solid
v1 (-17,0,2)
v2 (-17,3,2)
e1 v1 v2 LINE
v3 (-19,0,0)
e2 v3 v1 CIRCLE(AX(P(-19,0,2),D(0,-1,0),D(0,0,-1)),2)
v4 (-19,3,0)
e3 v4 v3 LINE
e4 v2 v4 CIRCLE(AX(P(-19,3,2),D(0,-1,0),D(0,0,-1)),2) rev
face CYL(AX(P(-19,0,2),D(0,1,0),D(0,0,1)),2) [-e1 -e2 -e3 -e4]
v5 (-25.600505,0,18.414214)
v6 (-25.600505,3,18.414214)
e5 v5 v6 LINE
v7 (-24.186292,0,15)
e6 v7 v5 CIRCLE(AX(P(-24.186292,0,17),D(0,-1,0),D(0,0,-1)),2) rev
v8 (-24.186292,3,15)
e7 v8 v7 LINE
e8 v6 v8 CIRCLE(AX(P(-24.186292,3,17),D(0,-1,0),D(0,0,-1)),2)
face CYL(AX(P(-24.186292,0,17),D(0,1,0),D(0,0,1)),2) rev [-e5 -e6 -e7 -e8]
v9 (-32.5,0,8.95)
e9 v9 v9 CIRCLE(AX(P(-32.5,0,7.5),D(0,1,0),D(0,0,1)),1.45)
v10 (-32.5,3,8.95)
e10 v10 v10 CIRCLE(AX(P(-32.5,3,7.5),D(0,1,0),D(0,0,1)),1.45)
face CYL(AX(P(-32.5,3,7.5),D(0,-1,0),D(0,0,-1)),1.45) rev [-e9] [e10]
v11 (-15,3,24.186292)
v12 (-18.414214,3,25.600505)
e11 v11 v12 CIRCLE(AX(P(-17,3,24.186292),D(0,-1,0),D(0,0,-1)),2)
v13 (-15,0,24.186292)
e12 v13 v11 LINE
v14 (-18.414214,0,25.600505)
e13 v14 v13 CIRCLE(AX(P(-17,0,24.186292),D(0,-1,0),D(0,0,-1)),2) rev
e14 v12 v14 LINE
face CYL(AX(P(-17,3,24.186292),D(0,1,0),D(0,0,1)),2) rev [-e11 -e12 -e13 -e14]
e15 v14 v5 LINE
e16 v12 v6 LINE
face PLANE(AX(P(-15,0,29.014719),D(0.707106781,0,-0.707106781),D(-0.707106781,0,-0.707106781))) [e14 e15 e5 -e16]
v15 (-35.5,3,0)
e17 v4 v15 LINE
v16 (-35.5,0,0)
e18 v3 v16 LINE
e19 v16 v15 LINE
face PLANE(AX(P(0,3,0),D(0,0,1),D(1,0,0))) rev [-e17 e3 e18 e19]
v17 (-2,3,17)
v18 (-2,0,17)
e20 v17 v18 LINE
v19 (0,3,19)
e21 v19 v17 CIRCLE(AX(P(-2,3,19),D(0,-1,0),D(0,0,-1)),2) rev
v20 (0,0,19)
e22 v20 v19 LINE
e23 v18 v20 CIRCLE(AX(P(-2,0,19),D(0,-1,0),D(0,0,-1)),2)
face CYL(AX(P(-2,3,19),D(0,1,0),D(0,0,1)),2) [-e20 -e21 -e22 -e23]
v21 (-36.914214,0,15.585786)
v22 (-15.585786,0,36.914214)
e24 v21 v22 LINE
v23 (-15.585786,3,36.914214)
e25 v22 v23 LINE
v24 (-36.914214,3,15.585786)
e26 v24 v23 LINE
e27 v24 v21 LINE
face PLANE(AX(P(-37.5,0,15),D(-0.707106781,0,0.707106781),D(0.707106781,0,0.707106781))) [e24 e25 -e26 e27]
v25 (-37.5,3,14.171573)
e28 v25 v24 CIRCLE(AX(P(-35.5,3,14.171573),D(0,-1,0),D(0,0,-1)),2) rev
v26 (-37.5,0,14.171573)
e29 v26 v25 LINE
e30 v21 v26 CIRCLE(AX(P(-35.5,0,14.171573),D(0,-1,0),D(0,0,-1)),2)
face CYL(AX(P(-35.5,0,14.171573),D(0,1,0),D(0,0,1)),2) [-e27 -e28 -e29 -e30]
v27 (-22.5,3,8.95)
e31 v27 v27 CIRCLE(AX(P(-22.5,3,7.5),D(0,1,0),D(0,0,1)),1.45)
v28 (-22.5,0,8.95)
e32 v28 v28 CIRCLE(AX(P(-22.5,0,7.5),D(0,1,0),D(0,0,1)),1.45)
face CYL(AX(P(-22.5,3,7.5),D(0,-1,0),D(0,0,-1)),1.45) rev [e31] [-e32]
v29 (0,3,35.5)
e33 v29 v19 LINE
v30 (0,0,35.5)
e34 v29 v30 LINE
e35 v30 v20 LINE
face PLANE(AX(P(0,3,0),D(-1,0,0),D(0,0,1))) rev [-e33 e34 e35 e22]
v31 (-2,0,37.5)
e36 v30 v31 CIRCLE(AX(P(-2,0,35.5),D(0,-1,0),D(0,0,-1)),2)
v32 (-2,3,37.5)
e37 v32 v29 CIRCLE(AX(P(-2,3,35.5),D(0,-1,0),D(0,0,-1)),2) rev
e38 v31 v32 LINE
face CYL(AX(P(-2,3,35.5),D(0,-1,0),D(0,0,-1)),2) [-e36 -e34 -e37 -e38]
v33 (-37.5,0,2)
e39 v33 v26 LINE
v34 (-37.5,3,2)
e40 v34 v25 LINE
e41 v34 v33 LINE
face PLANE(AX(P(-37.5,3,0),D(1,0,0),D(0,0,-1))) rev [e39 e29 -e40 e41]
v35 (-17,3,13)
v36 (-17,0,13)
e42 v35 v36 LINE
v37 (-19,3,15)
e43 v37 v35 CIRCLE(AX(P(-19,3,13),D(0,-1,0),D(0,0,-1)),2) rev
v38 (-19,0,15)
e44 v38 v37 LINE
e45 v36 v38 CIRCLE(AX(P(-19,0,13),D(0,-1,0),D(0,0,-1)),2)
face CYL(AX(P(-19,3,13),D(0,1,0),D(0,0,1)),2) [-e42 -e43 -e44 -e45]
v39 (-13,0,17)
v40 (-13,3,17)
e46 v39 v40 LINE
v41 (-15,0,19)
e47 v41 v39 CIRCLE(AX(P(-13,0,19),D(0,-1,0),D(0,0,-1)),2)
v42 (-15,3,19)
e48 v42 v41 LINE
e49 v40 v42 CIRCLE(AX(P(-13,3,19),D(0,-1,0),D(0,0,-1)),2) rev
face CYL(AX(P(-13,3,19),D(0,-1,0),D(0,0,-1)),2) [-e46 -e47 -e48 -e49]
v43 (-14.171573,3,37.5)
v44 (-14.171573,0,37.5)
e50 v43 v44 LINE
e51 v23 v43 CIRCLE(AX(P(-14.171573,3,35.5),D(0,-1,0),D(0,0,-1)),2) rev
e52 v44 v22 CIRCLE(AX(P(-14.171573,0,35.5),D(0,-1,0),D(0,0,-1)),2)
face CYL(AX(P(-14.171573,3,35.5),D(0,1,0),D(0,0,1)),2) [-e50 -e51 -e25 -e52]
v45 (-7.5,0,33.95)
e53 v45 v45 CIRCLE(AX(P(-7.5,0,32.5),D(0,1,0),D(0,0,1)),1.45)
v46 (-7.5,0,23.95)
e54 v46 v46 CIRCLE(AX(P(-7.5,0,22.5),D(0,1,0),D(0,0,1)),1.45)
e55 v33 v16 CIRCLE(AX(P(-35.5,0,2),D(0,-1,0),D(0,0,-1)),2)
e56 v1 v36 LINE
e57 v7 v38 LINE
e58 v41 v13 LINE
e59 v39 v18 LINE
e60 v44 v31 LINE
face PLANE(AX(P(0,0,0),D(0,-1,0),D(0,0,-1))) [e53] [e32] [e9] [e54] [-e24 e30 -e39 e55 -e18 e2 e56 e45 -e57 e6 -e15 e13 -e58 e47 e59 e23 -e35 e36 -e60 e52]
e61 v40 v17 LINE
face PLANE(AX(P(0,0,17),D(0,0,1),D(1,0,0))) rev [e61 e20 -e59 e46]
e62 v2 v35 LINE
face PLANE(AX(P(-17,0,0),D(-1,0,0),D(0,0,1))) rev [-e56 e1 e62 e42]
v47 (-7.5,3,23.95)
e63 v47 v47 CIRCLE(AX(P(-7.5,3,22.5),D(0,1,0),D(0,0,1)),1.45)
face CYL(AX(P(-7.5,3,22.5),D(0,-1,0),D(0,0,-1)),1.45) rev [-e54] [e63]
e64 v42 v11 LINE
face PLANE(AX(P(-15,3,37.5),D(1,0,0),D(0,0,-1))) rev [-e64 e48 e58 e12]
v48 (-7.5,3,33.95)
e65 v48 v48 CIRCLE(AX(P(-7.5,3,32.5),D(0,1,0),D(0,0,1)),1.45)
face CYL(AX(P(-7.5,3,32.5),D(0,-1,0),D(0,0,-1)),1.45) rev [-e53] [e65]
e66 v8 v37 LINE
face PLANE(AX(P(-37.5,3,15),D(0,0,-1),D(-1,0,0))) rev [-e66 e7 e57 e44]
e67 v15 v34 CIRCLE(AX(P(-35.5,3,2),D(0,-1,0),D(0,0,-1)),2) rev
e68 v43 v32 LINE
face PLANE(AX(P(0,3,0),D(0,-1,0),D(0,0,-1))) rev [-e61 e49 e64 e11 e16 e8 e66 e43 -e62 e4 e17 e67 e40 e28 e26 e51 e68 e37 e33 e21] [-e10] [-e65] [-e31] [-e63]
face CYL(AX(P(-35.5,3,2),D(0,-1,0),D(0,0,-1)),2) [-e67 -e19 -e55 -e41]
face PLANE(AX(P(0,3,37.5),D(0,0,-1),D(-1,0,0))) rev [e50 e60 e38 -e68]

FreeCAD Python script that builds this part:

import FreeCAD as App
import Part
import Sketcher
from FreeCAD import Vector
Q = App.Units.Quantity


def edges_at(feature, points):
    """Names of the edges that pass closest to the given points."""
    edges = feature.Shape.Edges
    near = lambda p: min(range(len(edges)), key=lambda i: edges[i].distToShape(Part.Vertex(*p))[0])
    return sorted({f"Edge{near(p) + 1}" for p in points})

doc = App.newDocument("Part")
body = doc.addObject("PartDesign::Body", "Body")

# Sketch on XZ plane
sketch1 = body.newObject("Sketcher::SketchObject", "Sketch")
sketch1.AttachmentSupport = (doc.getObject("XZ_Plane"), [""])
sketch1.MapMode = "FlatFace"
sketch1.addGeometry([
    Part.LineSegment(Vector(0, 0, 0), Vector(-37.5, 0, 0)),  # 0
    Part.LineSegment(Vector(-37.5, 0, 0), Vector(-37.5, 15, 0)),  # 1
    Part.LineSegment(Vector(-37.5, 15, 0), Vector(-15, 15, 0)),  # 2
    Part.LineSegment(Vector(-15, 15, 0), Vector(-15, 37.5, 0)),  # 3
    Part.LineSegment(Vector(-15, 37.5, 0), Vector(0, 37.5, 0)),  # 4
    Part.LineSegment(Vector(0, 37.5, 0), Vector(0, 0, 0)),  # 5
    Part.Circle(Vector(-7.5, 32.5, 0), Vector(0, 0, 1), 1.4),  # 6
    Part.Circle(Vector(-7.5, 22.5, 0), Vector(0, 0, 1), 1.4),  # 7
    Part.Circle(Vector(-32.5, 7.5, 0), Vector(0, 0, 1), 1.4),  # 8
    Part.Circle(Vector(-22.5, 7.5, 0), Vector(0, 0, 1), 1.4),  # 9
    Part.Circle(Vector(-7.5, 7.5, 0), Vector(0, 0, 1), 1.4),  # 10
], False)
sketch1.addConstraint([
    Sketcher.Constraint("Coincident", 0, 2, 1, 1),
    Sketcher.Constraint("Coincident", 1, 2, 2, 1),
    Sketcher.Constraint("Coincident", 2, 2, 3, 1),
    Sketcher.Constraint("Coincident", 3, 2, 4, 1),
    Sketcher.Constraint("Coincident", 4, 2, 5, 1),
    Sketcher.Constraint("Coincident", 5, 2, 0, 1),
    Sketcher.Constraint("Horizontal", 0),
    Sketcher.Constraint("Vertical", 1),
    Sketcher.Constraint("Horizontal", 2),
    Sketcher.Constraint("Vertical", 3),
    Sketcher.Constraint("Horizontal", 4),
    Sketcher.Constraint("Vertical", 5),
    Sketcher.Constraint("Coincident", 5, 2, -1, 1),
    Sketcher.Constraint("Equal", 6, 7),
    Sketcher.Constraint("Equal", 7, 8),
    Sketcher.Constraint("Equal", 8, 9),
    Sketcher.Constraint("Equal", 9, 10),
    Sketcher.Constraint("Horizontal", 8, 3, 9, 3),
    Sketcher.Constraint("Horizontal", 9, 3, 10, 3),
    Sketcher.Constraint("Vertical", 6, 3, 7, 3),
    Sketcher.Constraint("Vertical", 7, 3, 10, 3),
    Sketcher.Constraint("Equal", 4, 1),
    Sketcher.Constraint("Equal", 2, 3),
    Sketcher.Constraint("Diameter", 6, Q("2.9 mm")),
    Sketcher.Constraint("DistanceX", 4, 1, 4, 2, Q("15 mm")),
    Sketcher.Constraint("DistanceX", 0, 2, 0, 1, Q("37.5 mm")),
    Sketcher.Constraint("DistanceY", 7, 3, 6, 3, Q("10 mm")),
    Sketcher.Constraint("DistanceX", 8, 3, 7, 3, Q("25 mm")),
    Sketcher.Constraint("DistanceY", 8, 3, 7, 3, Q("15 mm")),
    Sketcher.Constraint("DistanceX", 8, 3, 9, 3, Q("10 mm")),
    Sketcher.Constraint("DistanceX", 0, 2, 8, 3, Q("5 mm")),
    Sketcher.Constraint("DistanceY", 6, 3, 3, 2, Q("5 mm")),
])
pad1 = body.newObject("PartDesign::Pad", "Pad")
pad1.Profile = sketch1
pad1.Length = 3
pad1.Reversed = True

# Sketch on XZ plane
sketch2 = body.newObject("Sketcher::SketchObject", "Sketch001")
sketch2.AttachmentSupport = (doc.getObject("XZ_Plane"), [""])
sketch2.MapMode = "FlatFace"
sketch2.AttachmentOffset = App.Placement(Vector(0, 0, -3), App.Rotation())
sketch2.addGeometry([
    Part.LineSegment(Vector(-38, 15, 0), Vector(-15, 38, 0)),
    Part.LineSegment(Vector(-15, 38, 0), Vector(-15, 29, 0)),
    Part.LineSegment(Vector(-15, 29, 0), Vector(-29, 15, 0)),
    Part.LineSegment(Vector(-29, 15, 0), Vector(-38, 15, 0)),
], False)
sketch2.addConstraint([
    Sketcher.Constraint("Coincident", 0, 2, 1, 1),
    Sketcher.Constraint("Coincident", 1, 2, 2, 1),
    Sketcher.Constraint("Coincident", 2, 2, 3, 1),
    Sketcher.Constraint("Coincident", 3, 2, 0, 1),
    Sketcher.Constraint("Vertical", 1),
    Sketcher.Constraint("Horizontal", 3),
    Sketcher.Constraint("Parallel", 0, 2),
    Sketcher.Constraint("Equal", 3, 1),
    Sketcher.Constraint("DistanceX", 0, 2, -1, 1, Q("15 mm")),
    Sketcher.Constraint("DistanceY", -1, 1, 2, 2, Q("15 mm")),
    Sketcher.Constraint("DistanceY", -1, 1, 0, 2, Q("37.5 mm")),
    Sketcher.Constraint("DistanceX", 3, 2, 3, 1, Q("8.485281 mm")),
])
pad2 = body.newObject("PartDesign::Pad", "Pad001")
pad2.Profile = sketch2
pad2.Length = 3

# Sketch on XZ plane
sketch3 = body.newObject("Sketcher::SketchObject", "Sketch002")
sketch3.AttachmentSupport = (doc.getObject("XZ_Plane"), [""])
sketch3.MapMode = "FlatFace"
sketch3.AttachmentOffset = App.Placement(Vector(0, 0, -3), App.Rotation())
sketch3.addGeometry([
    Part.LineSegment(Vector(-17, 0, 0), Vector(-17, 17, 0)),
    Part.LineSegment(Vector(-17, 17, 0), Vector(0, 17, 0)),
    Part.LineSegment(Vector(0, 17, 0), Vector(0, 0, 0)),
    Part.LineSegment(Vector(0, 0, 0), Vector(-17, 0, 0)),
], False)
sketch3.addConstraint([
    Sketcher.Constraint("Coincident", 0, 2, 1, 1),
    Sketcher.Constraint("Coincident", 1, 2, 2, 1),
    Sketcher.Constraint("Coincident", 2, 2, 3, 1),
    Sketcher.Constraint("Coincident", 3, 2, 0, 1),
    Sketcher.Constraint("Vertical", 0),
    Sketcher.Constraint("Horizontal", 1),
    Sketcher.Constraint("Vertical", 2),
    Sketcher.Constraint("Horizontal", 3),
    Sketcher.Constraint("Coincident", 2, 2, -1, 1),
    Sketcher.Constraint("Equal", 3, 0),
    Sketcher.Constraint("DistanceX", 1, 1, 1, 2, Q("17 mm")),
])
pocket1 = body.newObject("PartDesign::Pocket", "Pocket")
pocket1.Profile = sketch3
pocket1.Type = "ThroughAll"
pocket1.Reversed = True
doc.recompute()

fillet = body.newObject("PartDesign::Fillet", "Fillet")
fillet.Base = (pocket1, edges_at(pocket1, [
    (0, 1.5, 37.5),
    (-15, 1.5, 37.5),
    (-37.5, 1.5, 15),
    (-37.5, 1.5, 0),
    (-29.015, 1.5, 15),
    (-15, 1.5, 29.015),
    (-15, 1.5, 17),
    (-17, 1.5, 15),
    (0, 1.5, 17),
    (-17, 1.5, 0),
]))
fillet.Radius = 2

doc.recompute()
